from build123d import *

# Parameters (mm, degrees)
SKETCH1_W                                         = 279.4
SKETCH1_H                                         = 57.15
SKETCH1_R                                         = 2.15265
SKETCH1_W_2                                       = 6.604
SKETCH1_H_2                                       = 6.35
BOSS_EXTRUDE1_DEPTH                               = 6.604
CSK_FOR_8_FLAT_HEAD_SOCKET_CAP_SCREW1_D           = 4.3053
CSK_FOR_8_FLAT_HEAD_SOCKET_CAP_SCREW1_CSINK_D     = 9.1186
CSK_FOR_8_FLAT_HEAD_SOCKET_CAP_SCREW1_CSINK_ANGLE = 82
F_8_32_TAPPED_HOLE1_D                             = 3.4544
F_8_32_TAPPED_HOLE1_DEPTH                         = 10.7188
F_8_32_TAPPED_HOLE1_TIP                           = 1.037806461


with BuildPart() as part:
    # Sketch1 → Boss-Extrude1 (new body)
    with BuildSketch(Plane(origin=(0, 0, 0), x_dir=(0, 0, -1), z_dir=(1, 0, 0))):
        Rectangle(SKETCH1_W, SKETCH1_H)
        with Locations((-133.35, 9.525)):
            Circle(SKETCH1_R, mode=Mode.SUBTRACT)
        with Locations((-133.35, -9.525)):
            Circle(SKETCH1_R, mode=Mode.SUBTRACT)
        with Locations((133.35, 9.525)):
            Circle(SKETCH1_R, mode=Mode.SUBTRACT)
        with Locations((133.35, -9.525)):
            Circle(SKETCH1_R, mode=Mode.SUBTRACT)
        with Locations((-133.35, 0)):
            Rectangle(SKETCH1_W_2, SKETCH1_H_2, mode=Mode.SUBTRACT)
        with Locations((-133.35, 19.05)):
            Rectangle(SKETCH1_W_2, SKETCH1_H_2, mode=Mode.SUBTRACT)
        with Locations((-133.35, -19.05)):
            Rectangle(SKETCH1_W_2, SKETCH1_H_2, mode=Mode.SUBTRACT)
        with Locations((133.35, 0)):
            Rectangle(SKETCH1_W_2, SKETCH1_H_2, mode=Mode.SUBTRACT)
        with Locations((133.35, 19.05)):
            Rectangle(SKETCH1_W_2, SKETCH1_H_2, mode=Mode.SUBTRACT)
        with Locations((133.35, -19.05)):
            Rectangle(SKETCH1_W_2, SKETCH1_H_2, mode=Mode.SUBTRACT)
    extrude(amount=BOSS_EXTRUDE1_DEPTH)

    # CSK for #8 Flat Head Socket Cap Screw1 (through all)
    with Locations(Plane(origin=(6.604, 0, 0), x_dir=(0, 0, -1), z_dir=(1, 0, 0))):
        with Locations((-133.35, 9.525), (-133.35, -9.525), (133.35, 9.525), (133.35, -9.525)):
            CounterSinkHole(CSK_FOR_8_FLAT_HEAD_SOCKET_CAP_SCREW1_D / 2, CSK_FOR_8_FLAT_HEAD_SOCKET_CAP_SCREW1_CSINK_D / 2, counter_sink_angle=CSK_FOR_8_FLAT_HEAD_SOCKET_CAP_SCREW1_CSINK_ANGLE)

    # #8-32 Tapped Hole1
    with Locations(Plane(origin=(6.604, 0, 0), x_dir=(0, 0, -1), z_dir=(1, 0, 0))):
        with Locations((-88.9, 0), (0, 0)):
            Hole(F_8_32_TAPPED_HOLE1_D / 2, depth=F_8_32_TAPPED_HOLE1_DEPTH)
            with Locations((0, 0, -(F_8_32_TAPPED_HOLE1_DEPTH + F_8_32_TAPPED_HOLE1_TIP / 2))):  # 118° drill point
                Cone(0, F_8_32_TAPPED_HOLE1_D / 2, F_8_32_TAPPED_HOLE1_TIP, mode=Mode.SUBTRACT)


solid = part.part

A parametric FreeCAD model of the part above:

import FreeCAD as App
import Part
import Sketcher
Q = App.Units.Quantity

doc = App.newDocument("Part")
body = doc.addObject("PartDesign::Body", "Body")

sketch1 = body.newObject("Sketcher::SketchObject", "Sketch")
sketch1.AttachmentSupport = (doc.getObject("YZ_Plane"), [""])
sketch1.MapMode = "FlatFace"
sketch1.addGeometry(Part.LineSegment(App.Vector(28.575, 139.7, 0), App.Vector(-28.575, 139.7, 0)), False)
sketch1.addGeometry(Part.LineSegment(App.Vector(-28.575, 139.7, 0), App.Vector(-28.575, -139.7, 0)), False)
sketch1.addGeometry(Part.LineSegment(App.Vector(-28.575, -139.7, 0), App.Vector(28.575, -139.7, 0)), False)
sketch1.addGeometry(Part.LineSegment(App.Vector(28.575, -139.7, 0), App.Vector(28.575, 139.7, 0)), False)
sketch1.addGeometry(Part.LineSegment(App.Vector(-22.225, 130.048, 0), App.Vector(-22.225, 136.652, 0)), False)
sketch1.addGeometry(Part.LineSegment(App.Vector(-22.225, 136.652, 0), App.Vector(-15.875, 136.652, 0)), False)
sketch1.addGeometry(Part.LineSegment(App.Vector(-15.875, 136.652, 0), App.Vector(-15.875, 130.048, 0)), False)
sketch1.addGeometry(Part.LineSegment(App.Vector(-15.875, 130.048, 0), App.Vector(-22.225, 130.048, 0)), False)
sketch1.addGeometry(Part.Circle(App.Vector(-9.525, 133.35, 0), App.Vector(0, 0, 1), 2.15265), False)
sketch1.addGeometry(Part.LineSegment(App.Vector(-22.225, -136.652, 0), App.Vector(-22.225, -130.048, 0)), False)
sketch1.addGeometry(Part.LineSegment(App.Vector(-22.225, -130.048, 0), App.Vector(-15.875, -130.048, 0)), False)
sketch1.addGeometry(Part.LineSegment(App.Vector(-15.875, -130.048, 0), App.Vector(-15.875, -136.652, 0)), False)
sketch1.addGeometry(Part.LineSegment(App.Vector(-15.875, -136.652, 0), App.Vector(-22.225, -136.652, 0)), False)
sketch1.addGeometry(Part.Circle(App.Vector(-9.525, -133.35, 0), App.Vector(0, 0, 1), 2.15265), False)
sketch1.addGeometry(Part.LineSegment(App.Vector(-3.175, 130.048, 0), App.Vector(-3.175, 136.652, 0)), False)
sketch1.addGeometry(Part.LineSegment(App.Vector(-3.175, 136.652, 0), App.Vector(3.175, 136.652, 0)), False)
sketch1.addGeometry(Part.LineSegment(App.Vector(3.175, 136.652, 0), App.Vector(3.175, 130.048, 0)), False)
sketch1.addGeometry(Part.LineSegment(App.Vector(3.175, 130.048, 0), App.Vector(-3.175, 130.048, 0)), False)
sketch1.addGeometry(Part.Circle(App.Vector(9.525, 133.35, 0), App.Vector(0, 0, 1), 2.15265), False)
sketch1.addGeometry(Part.LineSegment(App.Vector(15.875, 130.048, 0), App.Vector(15.875, 136.652, 0)), False)
sketch1.addGeometry(Part.LineSegment(App.Vector(15.875, 136.652, 0), App.Vector(22.225, 136.652, 0)), False)
sketch1.addGeometry(Part.LineSegment(App.Vector(22.225, 136.652, 0), App.Vector(22.225, 130.048, 0)), False)
sketch1.addGeometry(Part.LineSegment(App.Vector(22.225, 130.048, 0), App.Vector(15.875, 130.048, 0)), False)
sketch1.addGeometry(Part.LineSegment(App.Vector(-3.175, -136.652, 0), App.Vector(-3.175, -130.048, 0)), False)
sketch1.addGeometry(Part.LineSegment(App.Vector(-3.175, -130.048, 0), App.Vector(3.175, -130.048, 0)), False)
sketch1.addGeometry(Part.LineSegment(App.Vector(3.175, -130.048, 0), App.Vector(3.175, -136.652, 0)), False)
sketch1.addGeometry(Part.LineSegment(App.Vector(3.175, -136.652, 0), App.Vector(-3.175, -136.652, 0)), False)
sketch1.addGeometry(Part.Circle(App.Vector(9.525, -133.35, 0), App.Vector(0, 0, 1), 2.15265), False)
sketch1.addGeometry(Part.LineSegment(App.Vector(15.875, -136.652, 0), App.Vector(15.875, -130.048, 0)), False)
sketch1.addGeometry(Part.LineSegment(App.Vector(15.875, -130.048, 0), App.Vector(22.225, -130.048, 0)), False)
sketch1.addGeometry(Part.LineSegment(App.Vector(22.225, -130.048, 0), App.Vector(22.225, -136.652, 0)), False)
sketch1.addGeometry(Part.LineSegment(App.Vector(22.225, -136.652, 0), App.Vector(15.875, -136.652, 0)), False)
sketch1.addConstraint(Sketcher.Constraint("Coincident", 0, 2, 1, 1))
sketch1.addConstraint(Sketcher.Constraint("Coincident", 1, 2, 2, 1))
sketch1.addConstraint(Sketcher.Constraint("Coincident", 2, 2, 3, 1))
sketch1.addConstraint(Sketcher.Constraint("Coincident", 3, 2, 0, 1))
sketch1.addConstraint(Sketcher.Constraint("Coincident", 4, 2, 5, 1))
sketch1.addConstraint(Sketcher.Constraint("Coincident", 5, 2, 6, 1))
sketch1.addConstraint(Sketcher.Constraint("Coincident", 6, 2, 7, 1))
sketch1.addConstraint(Sketcher.Constraint("Coincident", 7, 2, 4, 1))
sketch1.addConstraint(Sketcher.Constraint("Coincident", 9, 2, 10, 1))
sketch1.addConstraint(Sketcher.Constraint("Coincident", 10, 2, 11, 1))
sketch1.addConstraint(Sketcher.Constraint("Coincident", 11, 2, 12, 1))
sketch1.addConstraint(Sketcher.Constraint("Coincident", 12, 2, 9, 1))
sketch1.addConstraint(Sketcher.Constraint("Coincident", 14, 2, 15, 1))
sketch1.addConstraint(Sketcher.Constraint("Coincident", 15, 2, 16, 1))
sketch1.addConstraint(Sketcher.Constraint("Coincident", 16, 2, 17, 1))
sketch1.addConstraint(Sketcher.Constraint("Coincident", 17, 2, 14, 1))
sketch1.addConstraint(Sketcher.Constraint("Coincident", 19, 2, 20, 1))
sketch1.addConstraint(Sketcher.Constraint("Coincident", 20, 2, 21, 1))
sketch1.addConstraint(Sketcher.Constraint("Coincident", 21, 2, 22, 1))
sketch1.addConstraint(Sketcher.Constraint("Coincident", 22, 2, 19, 1))
sketch1.addConstraint(Sketcher.Constraint("Coincident", 23, 2, 24, 1))
sketch1.addConstraint(Sketcher.Constraint("Coincident", 24, 2, 25, 1))
sketch1.addConstraint(Sketcher.Constraint("Coincident", 25, 2, 26, 1))
sketch1.addConstraint(Sketcher.Constraint("Coincident", 26, 2, 23, 1))
sketch1.addConstraint(Sketcher.Constraint("Coincident", 28, 2, 29, 1))
sketch1.addConstraint(Sketcher.Constraint("Coincident", 29, 2, 30, 1))
sketch1.addConstraint(Sketcher.Constraint("Coincident", 30, 2, 31, 1))
sketch1.addConstraint(Sketcher.Constraint("Coincident", 31, 2, 28, 1))
sketch1.addConstraint(Sketcher.Constraint("Horizontal", 0))
sketch1.addConstraint(Sketcher.Constraint("Vertical", 1))
sketch1.addConstraint(Sketcher.Constraint("Horizontal", 2))
sketch1.addConstraint(Sketcher.Constraint("Vertical", 3))
sketch1.addConstraint(Sketcher.Constraint("Vertical", 4))
sketch1.addConstraint(Sketcher.Constraint("Horizontal", 5))
sketch1.addConstraint(Sketcher.Constraint("Vertical", 6))
sketch1.addConstraint(Sketcher.Constraint("Horizontal", 7))
sketch1.addConstraint(Sketcher.Constraint("Vertical", 9))
sketch1.addConstraint(Sketcher.Constraint("Horizontal", 10))
sketch1.addConstraint(Sketcher.Constraint("Vertical", 11))
sketch1.addConstraint(Sketcher.Constraint("Horizontal", 12))
sketch1.addConstraint(Sketcher.Constraint("Vertical", 14))
sketch1.addConstraint(Sketcher.Constraint("Horizontal", 15))
sketch1.addConstraint(Sketcher.Constraint("Vertical", 16))
sketch1.addConstraint(Sketcher.Constraint("Horizontal", 17))
sketch1.addConstraint(Sketcher.Constraint("Vertical", 19))
sketch1.addConstraint(Sketcher.Constraint("Horizontal", 20))
sketch1.addConstraint(Sketcher.Constraint("Vertical", 21))
sketch1.addConstraint(Sketcher.Constraint("Horizontal", 22))
sketch1.addConstraint(Sketcher.Constraint("Vertical", 23))
sketch1.addConstraint(Sketcher.Constraint("Horizontal", 24))
sketch1.addConstraint(Sketcher.Constraint("Vertical", 25))
sketch1.addConstraint(Sketcher.Constraint("Horizontal", 26))
sketch1.addConstraint(Sketcher.Constraint("Vertical", 28))
sketch1.addConstraint(Sketcher.Constraint("Horizontal", 29))
sketch1.addConstraint(Sketcher.Constraint("Vertical", 30))
sketch1.addConstraint(Sketcher.Constraint("Horizontal", 31))
sketch1.addConstraint(Sketcher.Constraint("Equal", 8, 13))
sketch1.addConstraint(Sketcher.Constraint("Equal", 13, 18))
sketch1.addConstraint(Sketcher.Constraint("Equal", 18, 27))
sketch1.addConstraint(Sketcher.Constraint("Symmetric", 13, 3, 18, 3, -1, 1))
sketch1.addConstraint(Sketcher.Constraint("Symmetric", 8, 3, 27, 3, -1, 1))
sketch1.addConstraint(Sketcher.Constraint("Symmetric", 0, 2, 2, 2, -1, 1))
sketch1.addConstraint(Sketcher.Constraint("Symmetric", 11, 2, 19, 2, -1, 1))
sketch1.addConstraint(Sketcher.Constraint("Symmetric", 9, 2, 21, 2, -1, 1))
sketch1.addConstraint(Sketcher.Constraint("Symmetric", 16, 2, 23, 2, -1, 1))
sketch1.addConstraint(Sketcher.Constraint("Symmetric", 14, 2, 25, 2, -1, 1))
sketch1.addConstraint(Sketcher.Constraint("Symmetric", 6, 2, 28, 2, -1, 1))
sketch1.addConstraint(Sketcher.Constraint("Symmetric", 4, 2, 30, 2, -1, 1))
sketch1.addConstraint(Sketcher.Constraint("Symmetric", 8, 3, 18, 3, -2))
sketch1.addConstraint(Sketcher.Constraint("Symmetric", 5, 2, 19, 2, -2))
sketch1.addConstraint(Sketcher.Constraint("Symmetric", 7, 2, 21, 2, -2))
sketch1.addConstraint(Sketcher.Constraint("Horizontal", 5, 2, 14, 2))
sketch1.addConstraint(Sketcher.Constraint("Horizontal", 7, 2, 16, 2))
sketch1.addConstraint(Sketcher.Constraint("Vertical", 17, 2, 23, 2))
sketch1.addConstraint(Sketcher.Constraint("Equal", 12, 15))
sketch1.addConstraint(Sketcher.Constraint("DistanceY", 1, 2, 1, 1, Q("11 in")))
sketch1.addConstraint(Sketcher.Constraint("DistanceX", 4, 2, 3, 2, Q("2 in")))
sketch1.addConstraint(Sketcher.Constraint("DistanceX", 5, 2, 18, 3, Q("1 in")))
sketch1.addConstraint(Sketcher.Constraint("Diameter", 8, Q("0.1695 in")))
sketch1.addConstraint(Sketcher.Constraint("DistanceX", 0, 2, 0, 1, Q("2.25 in")))
sketch1.addConstraint(Sketcher.Constraint("DistanceX", 5, 1, 5, 2, Q("0.25 in")))
sketch1.addConstraint(Sketcher.Constraint("DistanceY", 4, 1, 4, 2, Q("0.26 in")))
sketch1.addConstraint(Sketcher.Constraint("DistanceY", 13, 3, 8, 3, Q("10.5 in")))
sketch1.addConstraint(Sketcher.Constraint("DistanceY", -1, 1, 4, 2, Q("5.38 in")))
pad1 = body.newObject("PartDesign::Pad", "Pad")
pad1.Profile = sketch1
pad1.Length = Q("0.26 in")

sketch2 = body.newObject("Sketcher::SketchObject", "Sketch001")
sketch2.AttachmentSupport = (doc.getObject("YZ_Plane"), [""])
sketch2.MapMode = "FlatFace"
sketch2.AttachmentOffset = App.Placement(App.Vector(0, 0, 0.26 * 25.4), App.Rotation())
sketch2.addGeometry(Part.Circle(App.Vector(9.525, 133.35, 0), App.Vector(0, 0, 1), 2.15265), False)
sketch2.addGeometry(Part.Circle(App.Vector(-9.525, 133.35, 0), App.Vector(0, 0, 1), 2.15265), False)
sketch2.addGeometry(Part.Circle(App.Vector(9.525, -133.35, 0), App.Vector(0, 0, 1), 2.15265), False)
sketch2.addGeometry(Part.Circle(App.Vector(-9.525, -133.35, 0), App.Vector(0, 0, 1), 2.15265), False)
sketch2.addConstraint(Sketcher.Constraint("Equal", 0, 1))
sketch2.addConstraint(Sketcher.Constraint("Equal", 1, 2))
sketch2.addConstraint(Sketcher.Constraint("Equal", 2, 3))
sketch2.addConstraint(Sketcher.Constraint("Symmetric", 1, 3, 2, 3, -1, 1))
sketch2.addConstraint(Sketcher.Constraint("Symmetric", 0, 3, 3, 3, -1, 1))
sketch2.addConstraint(Sketcher.Constraint("Symmetric", 0, 3, 1, 3, -2))
sketch2.addConstraint(Sketcher.Constraint("Diameter", 0, Q("0.1695 in")))
sketch2.addConstraint(Sketcher.Constraint("DistanceY", 2, 3, 0, 3, Q("10.5 in")))
sketch2.addConstraint(Sketcher.Constraint("DistanceX", 1, 3, 0, 3, Q("0.75 in")))
doc.recompute()
hole = body.newObject("PartDesign::Hole", "Hole")
hole.Profile = sketch2
hole.ThreadType = "None"
hole.Diameter = Q("0.1695 in")
hole.DepthType = "ThroughAll"
hole.HoleCutType = "Countersink"
hole.HoleCutDiameter = Q("0.359 in")
hole.HoleCutCountersinkAngle = 82

sketch3 = body.newObject("Sketcher::SketchObject", "Sketch002")
sketch3.AttachmentSupport = (doc.getObject("YZ_Plane"), [""])
sketch3.MapMode = "FlatFace"
sketch3.AttachmentOffset = App.Placement(App.Vector(0, 0, 0.26 * 25.4), App.Rotation())
sketch3.addGeometry(Part.Circle(App.Vector(0, 88.9, 0), App.Vector(0, 0, 1), 1.7272), False)
sketch3.addGeometry(Part.Circle(App.Vector(0, 0, 0), App.Vector(0, 0, 1), 1.7272), False)
sketch3.addConstraint(Sketcher.Constraint("Coincident", 1, 3, -1, 1))
sketch3.addConstraint(Sketcher.Constraint("Equal", 0, 1))
sketch3.addConstraint(Sketcher.Constraint("PointOnObject", 0, 3, -2))
sketch3.addConstraint(Sketcher.Constraint("Diameter", 0, Q("0.136 in")))
sketch3.addConstraint(Sketcher.Constraint("DistanceY", -1, 1, 0, 3, Q("3.5 in")))
doc.recompute()
hole2 = body.newObject("PartDesign::Hole", "Hole001")
hole2.Profile = sketch3
hole2.ThreadType = "None"
hole2.Diameter = Q("0.136 in")
hole2.DepthType = "Dimension"
hole2.Depth = Q("0.422 in")
hole2.DrillPoint = "Angled"
hole2.DrillPointAngle = 118

doc.recompute()
